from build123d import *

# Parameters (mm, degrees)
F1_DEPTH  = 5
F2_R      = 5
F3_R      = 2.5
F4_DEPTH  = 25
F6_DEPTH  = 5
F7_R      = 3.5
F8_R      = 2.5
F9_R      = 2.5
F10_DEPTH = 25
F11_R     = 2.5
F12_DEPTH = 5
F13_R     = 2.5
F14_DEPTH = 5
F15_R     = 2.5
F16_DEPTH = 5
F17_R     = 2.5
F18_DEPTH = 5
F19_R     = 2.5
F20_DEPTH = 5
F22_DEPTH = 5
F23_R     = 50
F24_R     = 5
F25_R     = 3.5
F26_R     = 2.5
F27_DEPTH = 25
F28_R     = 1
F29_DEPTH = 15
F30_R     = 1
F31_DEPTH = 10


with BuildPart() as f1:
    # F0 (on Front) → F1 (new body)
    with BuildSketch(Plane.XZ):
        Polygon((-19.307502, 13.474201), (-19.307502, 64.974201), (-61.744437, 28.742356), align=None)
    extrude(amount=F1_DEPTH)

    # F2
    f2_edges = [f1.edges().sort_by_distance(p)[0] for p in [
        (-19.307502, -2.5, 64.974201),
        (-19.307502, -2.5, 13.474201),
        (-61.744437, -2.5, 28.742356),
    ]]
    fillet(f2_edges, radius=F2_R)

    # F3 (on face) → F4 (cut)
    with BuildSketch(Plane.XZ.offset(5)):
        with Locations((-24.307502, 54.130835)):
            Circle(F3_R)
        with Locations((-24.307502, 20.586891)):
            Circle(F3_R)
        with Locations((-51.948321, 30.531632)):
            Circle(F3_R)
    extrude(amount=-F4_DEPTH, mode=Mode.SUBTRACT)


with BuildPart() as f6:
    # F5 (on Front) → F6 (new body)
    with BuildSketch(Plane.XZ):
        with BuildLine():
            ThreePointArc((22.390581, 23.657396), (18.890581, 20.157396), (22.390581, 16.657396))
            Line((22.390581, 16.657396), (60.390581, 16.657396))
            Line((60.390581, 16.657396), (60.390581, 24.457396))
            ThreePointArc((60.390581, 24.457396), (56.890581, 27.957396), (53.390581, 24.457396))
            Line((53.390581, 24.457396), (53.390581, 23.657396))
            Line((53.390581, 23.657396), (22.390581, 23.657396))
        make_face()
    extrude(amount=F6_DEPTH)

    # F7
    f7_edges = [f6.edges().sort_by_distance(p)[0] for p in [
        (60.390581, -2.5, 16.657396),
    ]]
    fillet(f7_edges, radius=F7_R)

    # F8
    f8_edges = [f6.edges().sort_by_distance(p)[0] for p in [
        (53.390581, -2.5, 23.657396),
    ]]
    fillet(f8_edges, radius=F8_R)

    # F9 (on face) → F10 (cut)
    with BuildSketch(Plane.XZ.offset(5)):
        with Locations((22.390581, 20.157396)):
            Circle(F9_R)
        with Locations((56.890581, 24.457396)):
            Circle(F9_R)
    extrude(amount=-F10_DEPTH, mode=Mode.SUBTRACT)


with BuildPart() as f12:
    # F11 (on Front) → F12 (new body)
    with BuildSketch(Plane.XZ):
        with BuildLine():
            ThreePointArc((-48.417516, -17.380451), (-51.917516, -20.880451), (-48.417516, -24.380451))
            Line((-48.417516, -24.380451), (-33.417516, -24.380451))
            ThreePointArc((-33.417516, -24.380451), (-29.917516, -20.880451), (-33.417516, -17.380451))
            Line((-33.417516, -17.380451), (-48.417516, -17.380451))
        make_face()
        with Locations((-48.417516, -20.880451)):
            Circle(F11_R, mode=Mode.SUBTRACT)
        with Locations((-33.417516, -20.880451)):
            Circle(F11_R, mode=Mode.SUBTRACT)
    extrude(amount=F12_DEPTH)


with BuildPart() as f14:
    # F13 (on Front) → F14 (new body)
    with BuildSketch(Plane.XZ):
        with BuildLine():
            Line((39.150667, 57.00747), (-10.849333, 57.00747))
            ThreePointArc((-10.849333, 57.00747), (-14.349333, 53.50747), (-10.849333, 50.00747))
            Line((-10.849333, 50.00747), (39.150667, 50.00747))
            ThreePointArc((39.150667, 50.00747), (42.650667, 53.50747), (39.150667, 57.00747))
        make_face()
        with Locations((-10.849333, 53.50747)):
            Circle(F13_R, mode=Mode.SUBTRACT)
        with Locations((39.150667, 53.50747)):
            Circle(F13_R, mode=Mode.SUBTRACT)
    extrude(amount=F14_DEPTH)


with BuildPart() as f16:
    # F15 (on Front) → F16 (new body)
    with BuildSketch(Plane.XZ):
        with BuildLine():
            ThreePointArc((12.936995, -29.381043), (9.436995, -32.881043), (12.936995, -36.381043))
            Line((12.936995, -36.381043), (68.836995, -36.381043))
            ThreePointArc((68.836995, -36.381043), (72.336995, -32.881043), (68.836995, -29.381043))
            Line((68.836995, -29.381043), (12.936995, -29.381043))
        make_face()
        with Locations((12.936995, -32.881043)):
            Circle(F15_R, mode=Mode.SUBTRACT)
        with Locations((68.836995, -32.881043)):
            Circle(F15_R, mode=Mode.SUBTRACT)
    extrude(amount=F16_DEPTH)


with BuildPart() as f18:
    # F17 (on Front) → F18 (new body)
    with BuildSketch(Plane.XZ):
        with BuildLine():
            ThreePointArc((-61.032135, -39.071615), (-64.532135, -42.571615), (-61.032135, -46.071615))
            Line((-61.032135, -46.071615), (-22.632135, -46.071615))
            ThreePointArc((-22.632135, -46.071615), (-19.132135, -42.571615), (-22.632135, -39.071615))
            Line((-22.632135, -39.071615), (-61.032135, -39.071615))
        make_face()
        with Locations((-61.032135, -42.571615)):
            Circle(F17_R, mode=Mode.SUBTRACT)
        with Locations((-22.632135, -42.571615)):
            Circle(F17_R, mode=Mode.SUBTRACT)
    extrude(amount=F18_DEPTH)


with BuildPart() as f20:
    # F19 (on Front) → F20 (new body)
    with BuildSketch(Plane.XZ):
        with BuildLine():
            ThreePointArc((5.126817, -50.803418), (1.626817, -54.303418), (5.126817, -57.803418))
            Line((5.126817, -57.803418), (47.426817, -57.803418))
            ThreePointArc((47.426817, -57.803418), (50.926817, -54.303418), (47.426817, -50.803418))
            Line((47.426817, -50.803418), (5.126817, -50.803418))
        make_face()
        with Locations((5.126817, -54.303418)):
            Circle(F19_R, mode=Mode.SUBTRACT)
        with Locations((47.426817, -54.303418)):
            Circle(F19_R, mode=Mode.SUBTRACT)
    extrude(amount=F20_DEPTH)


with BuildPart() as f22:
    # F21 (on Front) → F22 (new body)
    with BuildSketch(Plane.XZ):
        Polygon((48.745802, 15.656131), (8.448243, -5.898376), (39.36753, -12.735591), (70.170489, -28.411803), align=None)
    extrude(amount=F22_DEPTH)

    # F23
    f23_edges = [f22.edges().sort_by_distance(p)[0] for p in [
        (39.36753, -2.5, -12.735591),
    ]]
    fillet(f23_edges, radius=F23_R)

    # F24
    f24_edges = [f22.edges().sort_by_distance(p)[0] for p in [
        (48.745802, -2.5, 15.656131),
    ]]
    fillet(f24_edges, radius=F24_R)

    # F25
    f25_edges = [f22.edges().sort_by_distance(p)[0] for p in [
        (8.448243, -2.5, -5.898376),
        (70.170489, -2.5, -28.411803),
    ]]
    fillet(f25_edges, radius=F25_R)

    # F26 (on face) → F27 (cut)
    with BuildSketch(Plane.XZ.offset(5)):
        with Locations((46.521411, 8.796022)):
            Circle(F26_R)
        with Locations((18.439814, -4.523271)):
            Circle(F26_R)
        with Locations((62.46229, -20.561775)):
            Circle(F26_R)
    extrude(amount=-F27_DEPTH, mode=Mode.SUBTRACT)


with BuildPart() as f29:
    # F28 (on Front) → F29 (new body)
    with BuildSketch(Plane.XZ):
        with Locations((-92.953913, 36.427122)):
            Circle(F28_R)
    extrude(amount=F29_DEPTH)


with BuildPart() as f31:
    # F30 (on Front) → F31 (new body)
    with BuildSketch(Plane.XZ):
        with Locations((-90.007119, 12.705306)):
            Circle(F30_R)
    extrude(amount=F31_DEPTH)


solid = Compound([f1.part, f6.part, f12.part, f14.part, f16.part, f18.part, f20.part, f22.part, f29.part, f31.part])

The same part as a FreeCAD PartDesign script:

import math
import FreeCAD as App
import Part
import Sketcher

V = App.Vector


def edges_at(feature, points):
    """Names of the edges that pass closest to the given points."""
    edges = feature.Shape.Edges
    near = lambda p: min(range(len(edges)), key=lambda i: edges[i].distToShape(Part.Vertex(*p))[0])
    return sorted({f"Edge{near(p) + 1}" for p in points})


def add_polygon(sketch, points):
    """Adds a closed chain of lines whose ends are joined by coincident constraints."""
    first, n = sketch.GeometryCount, len(points)
    for a, b in zip(points, points[1:] + points[:1]):
        sketch.addGeometry(Part.LineSegment(App.Vector(*a, 0), App.Vector(*b, 0)), False)
    for i in range(n):
        sketch.addConstraint(Sketcher.Constraint("Coincident", first + i, 2, first + (i + 1) % n, 1))

doc = App.newDocument("Part")
body = doc.addObject("PartDesign::Body", "Body")

# Sketch on XZ plane
sketch1 = doc.addObject("Sketcher::SketchObject", "Sketch")
body.addObject(sketch1)
sketch1.AttachmentSupport = (doc.XZ_Plane, [""])
sketch1.MapMode = "FlatFace"
add_polygon(sketch1, [(-19.307502, 13.474201), (-19.307502, 64.974201), (-61.744437, 28.742356)])  # lines 0-2
sketch1.addConstraint([
    Sketcher.Constraint("Vertical", 0),
    Sketcher.Constraint("DistanceY", 0, 1, 0, 2, 51.5),
    Sketcher.Constraint("Distance", 1, 55.8),
    Sketcher.Constraint("Distance", 2, 45.1),
    Sketcher.Constraint("DistanceX", 0, 2, -1, 1, 19.307502),
    Sketcher.Constraint("DistanceY", -1, 1, 0, 2, 64.974201),
])
pad1 = doc.addObject("PartDesign::Pad", "Pad")
body.addObject(pad1)
pad1.Profile = sketch1
pad1.Length = 5
doc.recompute()

fillet = doc.addObject("PartDesign::Fillet", "Fillet")
body.addObject(fillet)
fillet.Base = (pad1, edges_at(pad1, [(-19.308, -2.5, 64.974), (-19.308, -2.5, 13.474), (-61.744, -2.5, 28.742)]))
fillet.Radius = 5

# Sketch on XZ plane
sketch2 = doc.addObject("Sketcher::SketchObject", "Sketch001")
body.addObject(sketch2)
sketch2.AttachmentSupport = (doc.XZ_Plane, [""])
sketch2.MapMode = "FlatFace"
sketch2.AttachmentOffset = App.Placement(V(0, 0, 5), App.Rotation())
sketch2.addGeometry([
    Part.Circle(V(-24.307502, 54.130835, 0), V(0, 0, 1), 2.5),
    Part.Circle(V(-24.307502, 20.586891, 0), V(0, 0, 1), 2.5),
    Part.Circle(V(-51.948321, 30.531632, 0), V(0, 0, 1), 2.5),
], False)
sketch2.addConstraint([
    Sketcher.Constraint("Equal", 0, 1),
    Sketcher.Constraint("Equal", 1, 2),
    Sketcher.Constraint("Vertical", 0, 3, 1, 3),
    Sketcher.Constraint("Diameter", 0, 5.0),
    Sketcher.Constraint("DistanceX", 0, 3, -1, 1, 24.307502),
    Sketcher.Constraint("DistanceY", -1, 1, 1, 3, 20.586891),
    Sketcher.Constraint("DistanceX", 2, 3, -1, 1, 51.948321),
    Sketcher.Constraint("DistanceY", -1, 1, 2, 3, 30.531632),
    Sketcher.Constraint("DistanceY", -1, 1, 0, 3, 54.130835),
])
pocket1 = doc.addObject("PartDesign::Pocket", "Pocket")
body.addObject(pocket1)
pocket1.Profile = sketch2
pocket1.Length = 25
body2 = doc.addObject("PartDesign::Body", "Body001")

# Sketch on XZ plane
sketch3 = doc.addObject("Sketcher::SketchObject", "Sketch002")
body2.addObject(sketch3)
sketch3.AttachmentSupport = (doc.getObject("XZ_Plane001"), [""])
sketch3.MapMode = "FlatFace"
sketch3.addGeometry([
    Part.ArcOfCircle(Part.Circle(V(22.390581, 20.157396, 0), V(0, 0, 1), 3.5), math.radians(90), math.radians(270)),  # 0
    Part.LineSegment(V(22.390581, 16.657396, 0), V(60.390581, 16.657396, 0)),  # 1
    Part.LineSegment(V(60.390581, 16.657396, 0), V(60.390581, 24.457396, 0)),  # 2
    Part.ArcOfCircle(Part.Circle(V(56.890581, 24.457396, 0), V(0, 0, 1), 3.5), math.radians(0), math.radians(180)),  # 3
    Part.LineSegment(V(53.390581, 24.457396, 0), V(53.390581, 23.657396, 0)),  # 4
    Part.LineSegment(V(53.390581, 23.657396, 0), V(22.390581, 23.657396, 0)),  # 5
], False)
sketch3.addConstraint([
    Sketcher.Constraint("Tangent", 0, 2, 1, 1),
    Sketcher.Constraint("Coincident", 1, 2, 2, 1),
    Sketcher.Constraint("Tangent", 2, 2, 3, 1),
    Sketcher.Constraint("Tangent", 3, 2, 4, 1),
    Sketcher.Constraint("Coincident", 4, 2, 5, 1),
    Sketcher.Constraint("Tangent", 5, 2, 0, 1),
    Sketcher.Constraint("Horizontal", 1),
    Sketcher.Constraint("Vertical", 2),
    Sketcher.Constraint("Vertical", 4),
    Sketcher.Constraint("Horizontal", 5),
    Sketcher.Constraint("Equal", 0, 3),
    Sketcher.Constraint("Radius", 0, 3.5),
    Sketcher.Constraint("DistanceX", 1, 1, 1, 2, 38.0),
    Sketcher.Constraint("DistanceY", 2, 1, 2, 2, 7.8),
    Sketcher.Constraint("DistanceX", -1, 1, 0, 3, 22.390581),
    Sketcher.Constraint("DistanceY", -1, 1, 0, 3, 20.157396),
])
pad2 = doc.addObject("PartDesign::Pad", "Pad001")
body2.addObject(pad2)
pad2.Profile = sketch3
pad2.Length = 5
doc.recompute()

fillet2 = doc.addObject("PartDesign::Fillet", "Fillet001")
body2.addObject(fillet2)
fillet2.Base = (pad2, edges_at(pad2, [(60.391, -2.5, 16.657)]))
fillet2.Radius = 3.5
doc.recompute()

fillet3 = doc.addObject("PartDesign::Fillet", "Fillet002")
body2.addObject(fillet3)
fillet3.Base = (fillet2, edges_at(fillet2, [(53.391, -2.5, 23.657)]))
fillet3.Radius = 2.5

# Sketch on XZ plane
sketch4 = doc.addObject("Sketcher::SketchObject", "Sketch003")
body2.addObject(sketch4)
sketch4.AttachmentSupport = (doc.getObject("XZ_Plane001"), [""])
sketch4.MapMode = "FlatFace"
sketch4.AttachmentOffset = App.Placement(V(0, 0, 5), App.Rotation())
sketch4.addGeometry([
    Part.Circle(V(22.390581, 20.157396, 0), V(0, 0, 1), 2.5),
    Part.Circle(V(56.890581, 24.457396, 0), V(0, 0, 1), 2.5),
], False)
sketch4.addConstraint([
    Sketcher.Constraint("Equal", 0, 1),
    Sketcher.Constraint("Diameter", 0, 5.0),
    Sketcher.Constraint("DistanceX", 0, 3, 1, 3, 34.5),
    Sketcher.Constraint("DistanceY", 0, 3, 1, 3, 4.3),
    Sketcher.Constraint("DistanceX", -1, 1, 0, 3, 22.390581),
    Sketcher.Constraint("DistanceY", -1, 1, 0, 3, 20.157396),
])
pocket2 = doc.addObject("PartDesign::Pocket", "Pocket001")
body2.addObject(pocket2)
pocket2.Profile = sketch4
pocket2.Length = 25
body3 = doc.addObject("PartDesign::Body", "Body002")

# Sketch on XZ plane
sketch5 = doc.addObject("Sketcher::SketchObject", "Sketch004")
body3.addObject(sketch5)
sketch5.AttachmentSupport = (doc.getObject("XZ_Plane002"), [""])
sketch5.MapMode = "FlatFace"
sketch5.addGeometry([
    Part.ArcOfCircle(Part.Circle(V(-48.417516, -20.880451, 0), V(0, 0, 1), 3.5), math.radians(90), math.radians(270)),  # 0
    Part.LineSegment(V(-48.417516, -24.380451, 0), V(-33.417516, -24.380451, 0)),  # 1
    Part.ArcOfCircle(Part.Circle(V(-33.417516, -20.880451, 0), V(0, 0, 1), 3.5), math.radians(-90), math.radians(90)),  # 2
    Part.LineSegment(V(-33.417516, -17.380451, 0), V(-48.417516, -17.380451, 0)),  # 3
    Part.Circle(V(-48.417516, -20.880451, 0), V(0, 0, 1), 2.5),  # 4
    Part.Circle(V(-33.417516, -20.880451, 0), V(0, 0, 1), 2.5),  # 5
], False)
sketch5.addConstraint([
    Sketcher.Constraint("Tangent", 0, 2, 1, 1),
    Sketcher.Constraint("Tangent", 1, 2, 2, 1),
    Sketcher.Constraint("Tangent", 2, 2, 3, 1),
    Sketcher.Constraint("Tangent", 3, 2, 0, 1),
    Sketcher.Constraint("Horizontal", 1),
    Sketcher.Constraint("Horizontal", 3),
    Sketcher.Constraint("Coincident", 4, 3, 0, 3),
    Sketcher.Constraint("Coincident", 5, 3, 2, 3),
    Sketcher.Constraint("Equal", 4, 5),
    Sketcher.Constraint("Diameter", 4, 5.0),
    Sketcher.Constraint("Radius", 0, 3.5),
    Sketcher.Constraint("DistanceX", 1, 1, 1, 2, 15.0),
    Sketcher.Constraint("DistanceY", 0, 3, -1, 1, 20.880451),
    Sketcher.Constraint("DistanceX", 0, 3, -1, 1, 48.417516),
])
pad3 = doc.addObject("PartDesign::Pad", "Pad002")
body3.addObject(pad3)
pad3.Profile = sketch5
pad3.Length = 5
body4 = doc.addObject("PartDesign::Body", "Body003")

# Sketch on XZ plane
sketch6 = doc.addObject("Sketcher::SketchObject", "Sketch005")
body4.addObject(sketch6)
sketch6.AttachmentSupport = (doc.getObject("XZ_Plane003"), [""])
sketch6.MapMode = "FlatFace"
sketch6.addGeometry([
    Part.LineSegment(V(39.150667, 57.00747, 0), V(-10.849333, 57.00747, 0)),  # 0
    Part.ArcOfCircle(Part.Circle(V(-10.849333, 53.50747, 0), V(0, 0, 1), 3.5), math.radians(90), math.radians(270)),  # 1
    Part.LineSegment(V(-10.849333, 50.00747, 0), V(39.150667, 50.00747, 0)),  # 2
    Part.ArcOfCircle(Part.Circle(V(39.150667, 53.50747, 0), V(0, 0, 1), 3.5), math.radians(-90), math.radians(90)),  # 3
    Part.Circle(V(-10.849333, 53.50747, 0), V(0, 0, 1), 2.5),  # 4
    Part.Circle(V(39.150667, 53.50747, 0), V(0, 0, 1), 2.5),  # 5
], False)
sketch6.addConstraint([
    Sketcher.Constraint("Tangent", 0, 2, 1, 1),
    Sketcher.Constraint("Tangent", 1, 2, 2, 1),
    Sketcher.Constraint("Tangent", 2, 2, 3, 1),
    Sketcher.Constraint("Tangent", 3, 2, 0, 1),
    Sketcher.Constraint("Horizontal", 0),
    Sketcher.Constraint("Horizontal", 2),
    Sketcher.Constraint("Coincident", 4, 3, 1, 3),
    Sketcher.Constraint("Coincident", 5, 3, 3, 3),
    Sketcher.Constraint("Equal", 4, 5),
    Sketcher.Constraint("Diameter", 4, 5.0),
    Sketcher.Constraint("Radius", 1, 3.5),
    Sketcher.Constraint("DistanceX", 0, 2, 0, 1, 50.0),
    Sketcher.Constraint("DistanceY", -1, 1, 1, 3, 53.50747),
    Sketcher.Constraint("DistanceX", 1, 3, -1, 1, 10.849333),
])
pad4 = doc.addObject("PartDesign::Pad", "Pad003")
body4.addObject(pad4)
pad4.Profile = sketch6
pad4.Length = 5
body5 = doc.addObject("PartDesign::Body", "Body004")

# Sketch on XZ plane
sketch7 = doc.addObject("Sketcher::SketchObject", "Sketch006")
body5.addObject(sketch7)
sketch7.AttachmentSupport = (doc.getObject("XZ_Plane004"), [""])
sketch7.MapMode = "FlatFace"
sketch7.addGeometry([
    Part.ArcOfCircle(Part.Circle(V(12.936995, -32.881043, 0), V(0, 0, 1), 3.5), math.radians(90), math.radians(270)),  # 0
    Part.LineSegment(V(12.936995, -36.381043, 0), V(68.836995, -36.381043, 0)),  # 1
    Part.ArcOfCircle(Part.Circle(V(68.836995, -32.881043, 0), V(0, 0, 1), 3.5), math.radians(-90), math.radians(90)),  # 2
    Part.LineSegment(V(68.836995, -29.381043, 0), V(12.936995, -29.381043, 0)),  # 3
    Part.Circle(V(12.936995, -32.881043, 0), V(0, 0, 1), 2.5),  # 4
    Part.Circle(V(68.836995, -32.881043, 0), V(0, 0, 1), 2.5),  # 5
], False)
sketch7.addConstraint([
    Sketcher.Constraint("Tangent", 0, 2, 1, 1),
    Sketcher.Constraint("Tangent", 1, 2, 2, 1),
    Sketcher.Constraint("Tangent", 2, 2, 3, 1),
    Sketcher.Constraint("Tangent", 3, 2, 0, 1),
    Sketcher.Constraint("Horizontal", 1),
    Sketcher.Constraint("Horizontal", 3),
    Sketcher.Constraint("Coincident", 4, 3, 0, 3),
    Sketcher.Constraint("Coincident", 5, 3, 2, 3),
    Sketcher.Constraint("Equal", 4, 5),
    Sketcher.Constraint("Diameter", 4, 5.0),
    Sketcher.Constraint("Radius", 0, 3.5),
    Sketcher.Constraint("DistanceX", 1, 1, 1, 2, 55.9),
    Sketcher.Constraint("DistanceX", -1, 1, 0, 3, 12.936995),
    Sketcher.Constraint("DistanceY", 0, 3, -1, 1, 32.881043),
])
pad5 = doc.addObject("PartDesign::Pad", "Pad004")
body5.addObject(pad5)
pad5.Profile = sketch7
pad5.Length = 5
body6 = doc.addObject("PartDesign::Body", "Body005")

# Sketch on XZ plane
sketch8 = doc.addObject("Sketcher::SketchObject", "Sketch007")
body6.addObject(sketch8)
sketch8.AttachmentSupport = (doc.getObject("XZ_Plane005"), [""])
sketch8.MapMode = "FlatFace"
sketch8.addGeometry([
    Part.ArcOfCircle(Part.Circle(V(-61.032135, -42.571615, 0), V(0, 0, 1), 3.5), math.radians(90), math.radians(270)),  # 0
    Part.LineSegment(V(-61.032135, -46.071615, 0), V(-22.632135, -46.071615, 0)),  # 1
    Part.ArcOfCircle(Part.Circle(V(-22.632135, -42.571615, 0), V(0, 0, 1), 3.5), math.radians(-90), math.radians(90)),  # 2
    Part.LineSegment(V(-22.632135, -39.071615, 0), V(-61.032135, -39.071615, 0)),  # 3
    Part.Circle(V(-61.032135, -42.571615, 0), V(0, 0, 1), 2.5),  # 4
    Part.Circle(V(-22.632135, -42.571615, 0), V(0, 0, 1), 2.5),  # 5
], False)
sketch8.addConstraint([
    Sketcher.Constraint("Tangent", 0, 2, 1, 1),
    Sketcher.Constraint("Tangent", 1, 2, 2, 1),
    Sketcher.Constraint("Tangent", 2, 2, 3, 1),
    Sketcher.Constraint("Tangent", 3, 2, 0, 1),
    Sketcher.Constraint("Horizontal", 1),
    Sketcher.Constraint("Horizontal", 3),
    Sketcher.Constraint("Coincident", 4, 3, 0, 3),
    Sketcher.Constraint("Coincident", 5, 3, 2, 3),
    Sketcher.Constraint("Equal", 4, 5),
    Sketcher.Constraint("Diameter", 4, 5.0),
    Sketcher.Constraint("Radius", 0, 3.5),
    Sketcher.Constraint("DistanceX", 1, 1, 1, 2, 38.4),
    Sketcher.Constraint("DistanceX", 0, 3, -1, 1, 61.032135),
    Sketcher.Constraint("DistanceY", 0, 3, -1, 1, 42.571615),
])
pad6 = doc.addObject("PartDesign::Pad", "Pad005")
body6.addObject(pad6)
pad6.Profile = sketch8
pad6.Length = 5
body7 = doc.addObject("PartDesign::Body", "Body006")

# Sketch on XZ plane
sketch9 = doc.addObject("Sketcher::SketchObject", "Sketch008")
body7.addObject(sketch9)
sketch9.AttachmentSupport = (doc.getObject("XZ_Plane006"), [""])
sketch9.MapMode = "FlatFace"
sketch9.addGeometry([
    Part.ArcOfCircle(Part.Circle(V(5.126817, -54.303418, 0), V(0, 0, 1), 3.5), math.radians(90), math.radians(270)),  # 0
    Part.LineSegment(V(5.126817, -57.803418, 0), V(47.426817, -57.803418, 0)),  # 1
    Part.ArcOfCircle(Part.Circle(V(47.426817, -54.303418, 0), V(0, 0, 1), 3.5), math.radians(-90), math.radians(90)),  # 2
    Part.LineSegment(V(47.426817, -50.803418, 0), V(5.126817, -50.803418, 0)),  # 3
    Part.Circle(V(5.126817, -54.303418, 0), V(0, 0, 1), 2.5),  # 4
    Part.Circle(V(47.426817, -54.303418, 0), V(0, 0, 1), 2.5),  # 5
], False)
sketch9.addConstraint([
    Sketcher.Constraint("Tangent", 0, 2, 1, 1),
    Sketcher.Constraint("Tangent", 1, 2, 2, 1),
    Sketcher.Constraint("Tangent", 2, 2, 3, 1),
    Sketcher.Constraint("Tangent", 3, 2, 0, 1),
    Sketcher.Constraint("Horizontal", 1),
    Sketcher.Constraint("Horizontal", 3),
    Sketcher.Constraint("Coincident", 4, 3, 0, 3),
    Sketcher.Constraint("Coincident", 5, 3, 2, 3),
    Sketcher.Constraint("Equal", 4, 5),
    Sketcher.Constraint("Diameter", 4, 5.0),
    Sketcher.Constraint("Radius", 0, 3.5),
    Sketcher.Constraint("DistanceX", 1, 1, 1, 2, 42.3),
    Sketcher.Constraint("DistanceX", -1, 1, 0, 3, 5.126817),
    Sketcher.Constraint("DistanceY", 0, 3, -1, 1, 54.303418),
])
pad7 = doc.addObject("PartDesign::Pad", "Pad006")
body7.addObject(pad7)
pad7.Profile = sketch9
pad7.Length = 5
body8 = doc.addObject("PartDesign::Body", "Body007")

# Sketch on XZ plane
sketch10 = doc.addObject("Sketcher::SketchObject", "Sketch009")
body8.addObject(sketch10)
sketch10.AttachmentSupport = (doc.getObject("XZ_Plane007"), [""])
sketch10.MapMode = "FlatFace"
add_polygon(sketch10, [(48.745802, 15.656131), (8.448243, -5.898376), (39.36753, -12.735591), (70.170489, -28.411803)])  # lines 0-3
sketch10.addConstraint([
    Sketcher.Constraint("Distance", 3, 49.0),
    Sketcher.Constraint("Distance", 0, 45.7),
    Sketcher.Constraint("DistanceX", -1, 1, 3, 2, 48.745802),
    Sketcher.Constraint("DistanceX", -1, 1, 1, 2, 39.36753),
    Sketcher.Constraint("DistanceY", 1, 2, -1, 1, 12.735591),
    Sketcher.Constraint("DistanceX", -1, 1, 2, 2, 70.170489),
    Sketcher.Constraint("DistanceY", -1, 1, 3, 2, 15.656131),
    Sketcher.Constraint("DistanceX", 0, 2, 3, 2, 40.297559),
])
pad8 = doc.addObject("PartDesign::Pad", "Pad007")
body8.addObject(pad8)
pad8.Profile = sketch10
pad8.Length = 5
doc.recompute()

fillet4 = doc.addObject("PartDesign::Fillet", "Fillet003")
body8.addObject(fillet4)
fillet4.Base = (pad8, edges_at(pad8, [(39.368, -2.5, -12.736)]))
fillet4.Radius = 50
doc.recompute()

fillet5 = doc.addObject("PartDesign::Fillet", "Fillet004")
body8.addObject(fillet5)
fillet5.Base = (fillet4, edges_at(fillet4, [(48.746, -2.5, 15.656)]))
fillet5.Radius = 5
doc.recompute()

fillet6 = doc.addObject("PartDesign::Fillet", "Fillet005")
body8.addObject(fillet6)
fillet6.Base = (fillet5, edges_at(fillet5, [(8.448, -2.5, -5.898), (70.17, -2.5, -28.412)]))
fillet6.Radius = 3.5

# Sketch on XZ plane
sketch11 = doc.addObject("Sketcher::SketchObject", "Sketch010")
body8.addObject(sketch11)
sketch11.AttachmentSupport = (doc.getObject("XZ_Plane007"), [""])
sketch11.MapMode = "FlatFace"
sketch11.AttachmentOffset = App.Placement(V(0, 0, 5), App.Rotation())
sketch11.addGeometry([
    Part.Circle(V(46.521411, 8.796022, 0), V(0, 0, 1), 2.5),
    Part.Circle(V(18.439814, -4.523271, 0), V(0, 0, 1), 2.5),
    Part.Circle(V(62.46229, -20.561775, 0), V(0, 0, 1), 2.5),
], False)
sketch11.addConstraint([
    Sketcher.Constraint("Equal", 0, 1),
    Sketcher.Constraint("Equal", 1, 2),
    Sketcher.Constraint("Diameter", 0, 5.0),
    Sketcher.Constraint("DistanceX", -1, 1, 0, 3, 46.521411),
    Sketcher.Constraint("DistanceY", 1, 3, -1, 1, 4.523271),
    Sketcher.Constraint("DistanceX", -1, 1, 2, 3, 62.46229),
    Sketcher.Constraint("DistanceY", -1, 1, 0, 3, 8.796022),
    Sketcher.Constraint("DistanceX", -1, 1, 1, 3, 18.439814),
    Sketcher.Constraint("DistanceY", 2, 3, -1, 1, 20.561775),
])
pocket3 = doc.addObject("PartDesign::Pocket", "Pocket002")
body8.addObject(pocket3)
pocket3.Profile = sketch11
pocket3.Length = 25
body9 = doc.addObject("PartDesign::Body", "Body008")

# Sketch on XZ plane
sketch12 = doc.addObject("Sketcher::SketchObject", "Sketch011")
body9.addObject(sketch12)
sketch12.AttachmentSupport = (doc.getObject("XZ_Plane008"), [""])
sketch12.MapMode = "FlatFace"
sketch12.addGeometry(Part.Circle(V(-92.953913, 36.427122, 0), V(0, 0, 1), 1), False)
sketch12.addConstraint([
    Sketcher.Constraint("Diameter", 0, 2.0),
    Sketcher.Constraint("DistanceY", -1, 1, 0, 3, 36.427122),
    Sketcher.Constraint("DistanceX", 0, 3, -1, 1, 92.953913),
])
pad9 = doc.addObject("PartDesign::Pad", "Pad008")
body9.addObject(pad9)
pad9.Profile = sketch12
pad9.Length = 15
body10 = doc.addObject("PartDesign::Body", "Body009")

# Sketch on XZ plane
sketch13 = doc.addObject("Sketcher::SketchObject", "Sketch012")
body10.addObject(sketch13)
sketch13.AttachmentSupport = (doc.getObject("XZ_Plane009"), [""])
sketch13.MapMode = "FlatFace"
sketch13.addGeometry(Part.Circle(V(-90.007119, 12.705306, 0), V(0, 0, 1), 1), False)
sketch13.addConstraint([
    Sketcher.Constraint("Diameter", 0, 2.0),
    Sketcher.Constraint("DistanceX", 0, 3, -1, 1, 90.007119),
    Sketcher.Constraint("DistanceY", -1, 1, 0, 3, 12.705306),
])
pad10 = doc.addObject("PartDesign::Pad", "Pad009")
body10.addObject(pad10)
pad10.Profile = sketch13
pad10.Length = 10

doc.recompute()
